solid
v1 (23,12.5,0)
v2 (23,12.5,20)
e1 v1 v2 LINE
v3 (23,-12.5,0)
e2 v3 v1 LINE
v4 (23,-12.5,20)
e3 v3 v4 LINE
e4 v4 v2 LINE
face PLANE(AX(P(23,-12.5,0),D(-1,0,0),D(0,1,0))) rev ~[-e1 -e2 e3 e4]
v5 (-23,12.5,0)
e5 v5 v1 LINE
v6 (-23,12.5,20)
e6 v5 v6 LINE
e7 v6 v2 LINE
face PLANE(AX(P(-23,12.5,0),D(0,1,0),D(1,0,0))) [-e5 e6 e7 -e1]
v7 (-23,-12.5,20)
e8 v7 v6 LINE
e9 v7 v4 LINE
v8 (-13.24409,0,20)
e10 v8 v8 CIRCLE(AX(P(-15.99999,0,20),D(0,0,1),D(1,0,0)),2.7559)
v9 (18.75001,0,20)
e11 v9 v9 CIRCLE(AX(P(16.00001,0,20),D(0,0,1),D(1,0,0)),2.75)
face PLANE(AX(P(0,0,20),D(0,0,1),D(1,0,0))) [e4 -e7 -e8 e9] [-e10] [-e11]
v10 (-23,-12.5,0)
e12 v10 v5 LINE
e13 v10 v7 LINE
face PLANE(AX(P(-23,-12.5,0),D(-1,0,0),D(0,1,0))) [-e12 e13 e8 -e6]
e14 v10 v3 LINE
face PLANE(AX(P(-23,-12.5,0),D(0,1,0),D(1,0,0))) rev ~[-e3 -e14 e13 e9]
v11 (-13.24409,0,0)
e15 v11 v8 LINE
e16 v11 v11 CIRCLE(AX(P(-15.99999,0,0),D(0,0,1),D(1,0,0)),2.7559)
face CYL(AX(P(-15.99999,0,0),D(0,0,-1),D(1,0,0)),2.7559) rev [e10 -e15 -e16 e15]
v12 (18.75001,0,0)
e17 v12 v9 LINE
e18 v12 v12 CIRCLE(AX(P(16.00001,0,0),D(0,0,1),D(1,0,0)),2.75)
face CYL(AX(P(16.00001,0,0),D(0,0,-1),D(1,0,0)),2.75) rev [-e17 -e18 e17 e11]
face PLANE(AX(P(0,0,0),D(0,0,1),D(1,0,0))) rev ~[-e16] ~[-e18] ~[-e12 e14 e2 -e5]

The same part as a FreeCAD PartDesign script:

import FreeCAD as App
import Part
import Sketcher

V = App.Vector

doc = App.newDocument("Part")
body = doc.addObject("PartDesign::Body", "Body")

# Sketch on XY plane
sketch1 = doc.addObject("Sketcher::SketchObject", "Sketch")
body.addObject(sketch1)
sketch1.AttachmentSupport = (doc.XY_Plane, [""])
sketch1.MapMode = "FlatFace"
sketch1.addGeometry([
    Part.LineSegment(V(-23, 12.5, 0), V(-23, -12.5, 0)),  # 0
    Part.LineSegment(V(-23, -12.5, 0), V(23, -12.5, 0)),  # 1
    Part.LineSegment(V(23, -12.5, 0), V(23, 12.5, 0)),  # 2
    Part.LineSegment(V(23, 12.5, 0), V(-23, 12.5, 0)),  # 3
    Part.Circle(V(-16, 0, 0), V(0, 0, 1), 2.8),  # 4
    Part.Circle(V(16, 0, 0), V(0, 0, 1), 2.8),  # 5
], False)
sketch1.addConstraint([
    Sketcher.Constraint("Coincident", 0, 2, 1, 1),
    Sketcher.Constraint("Coincident", 1, 2, 2, 1),
    Sketcher.Constraint("Coincident", 2, 2, 3, 1),
    Sketcher.Constraint("Coincident", 3, 2, 0, 1),
    Sketcher.Constraint("Vertical", 0),
    Sketcher.Constraint("Horizontal", 1),
    Sketcher.Constraint("Vertical", 2),
    Sketcher.Constraint("Horizontal", 3),
    Sketcher.Constraint("Symmetric", 0, 2, 2, 2, -1, 1),
    Sketcher.Constraint("PointOnObject", 4, 3, -1),
    Sketcher.Constraint("PointOnObject", 5, 3, -1),
    Sketcher.Constraint("Diameter", 5, 5.5),
    Sketcher.Constraint("DistanceX", 1, 1, 1, 2, 46.0),
    Sketcher.Constraint("DistanceY", 0, 2, 0, 1, 25.0),
    Sketcher.Constraint("DistanceX", 4, 3, 5, 3, 32.0),
    Sketcher.Constraint("Diameter", 4, 5.5118),
    Sketcher.Constraint("DistanceX", 4, 3, -1, 1, 15.99999),
])
pad1 = doc.addObject("PartDesign::Pad", "Pad")
body.addObject(pad1)
pad1.Profile = sketch1
pad1.Length = 20

doc.recompute()
